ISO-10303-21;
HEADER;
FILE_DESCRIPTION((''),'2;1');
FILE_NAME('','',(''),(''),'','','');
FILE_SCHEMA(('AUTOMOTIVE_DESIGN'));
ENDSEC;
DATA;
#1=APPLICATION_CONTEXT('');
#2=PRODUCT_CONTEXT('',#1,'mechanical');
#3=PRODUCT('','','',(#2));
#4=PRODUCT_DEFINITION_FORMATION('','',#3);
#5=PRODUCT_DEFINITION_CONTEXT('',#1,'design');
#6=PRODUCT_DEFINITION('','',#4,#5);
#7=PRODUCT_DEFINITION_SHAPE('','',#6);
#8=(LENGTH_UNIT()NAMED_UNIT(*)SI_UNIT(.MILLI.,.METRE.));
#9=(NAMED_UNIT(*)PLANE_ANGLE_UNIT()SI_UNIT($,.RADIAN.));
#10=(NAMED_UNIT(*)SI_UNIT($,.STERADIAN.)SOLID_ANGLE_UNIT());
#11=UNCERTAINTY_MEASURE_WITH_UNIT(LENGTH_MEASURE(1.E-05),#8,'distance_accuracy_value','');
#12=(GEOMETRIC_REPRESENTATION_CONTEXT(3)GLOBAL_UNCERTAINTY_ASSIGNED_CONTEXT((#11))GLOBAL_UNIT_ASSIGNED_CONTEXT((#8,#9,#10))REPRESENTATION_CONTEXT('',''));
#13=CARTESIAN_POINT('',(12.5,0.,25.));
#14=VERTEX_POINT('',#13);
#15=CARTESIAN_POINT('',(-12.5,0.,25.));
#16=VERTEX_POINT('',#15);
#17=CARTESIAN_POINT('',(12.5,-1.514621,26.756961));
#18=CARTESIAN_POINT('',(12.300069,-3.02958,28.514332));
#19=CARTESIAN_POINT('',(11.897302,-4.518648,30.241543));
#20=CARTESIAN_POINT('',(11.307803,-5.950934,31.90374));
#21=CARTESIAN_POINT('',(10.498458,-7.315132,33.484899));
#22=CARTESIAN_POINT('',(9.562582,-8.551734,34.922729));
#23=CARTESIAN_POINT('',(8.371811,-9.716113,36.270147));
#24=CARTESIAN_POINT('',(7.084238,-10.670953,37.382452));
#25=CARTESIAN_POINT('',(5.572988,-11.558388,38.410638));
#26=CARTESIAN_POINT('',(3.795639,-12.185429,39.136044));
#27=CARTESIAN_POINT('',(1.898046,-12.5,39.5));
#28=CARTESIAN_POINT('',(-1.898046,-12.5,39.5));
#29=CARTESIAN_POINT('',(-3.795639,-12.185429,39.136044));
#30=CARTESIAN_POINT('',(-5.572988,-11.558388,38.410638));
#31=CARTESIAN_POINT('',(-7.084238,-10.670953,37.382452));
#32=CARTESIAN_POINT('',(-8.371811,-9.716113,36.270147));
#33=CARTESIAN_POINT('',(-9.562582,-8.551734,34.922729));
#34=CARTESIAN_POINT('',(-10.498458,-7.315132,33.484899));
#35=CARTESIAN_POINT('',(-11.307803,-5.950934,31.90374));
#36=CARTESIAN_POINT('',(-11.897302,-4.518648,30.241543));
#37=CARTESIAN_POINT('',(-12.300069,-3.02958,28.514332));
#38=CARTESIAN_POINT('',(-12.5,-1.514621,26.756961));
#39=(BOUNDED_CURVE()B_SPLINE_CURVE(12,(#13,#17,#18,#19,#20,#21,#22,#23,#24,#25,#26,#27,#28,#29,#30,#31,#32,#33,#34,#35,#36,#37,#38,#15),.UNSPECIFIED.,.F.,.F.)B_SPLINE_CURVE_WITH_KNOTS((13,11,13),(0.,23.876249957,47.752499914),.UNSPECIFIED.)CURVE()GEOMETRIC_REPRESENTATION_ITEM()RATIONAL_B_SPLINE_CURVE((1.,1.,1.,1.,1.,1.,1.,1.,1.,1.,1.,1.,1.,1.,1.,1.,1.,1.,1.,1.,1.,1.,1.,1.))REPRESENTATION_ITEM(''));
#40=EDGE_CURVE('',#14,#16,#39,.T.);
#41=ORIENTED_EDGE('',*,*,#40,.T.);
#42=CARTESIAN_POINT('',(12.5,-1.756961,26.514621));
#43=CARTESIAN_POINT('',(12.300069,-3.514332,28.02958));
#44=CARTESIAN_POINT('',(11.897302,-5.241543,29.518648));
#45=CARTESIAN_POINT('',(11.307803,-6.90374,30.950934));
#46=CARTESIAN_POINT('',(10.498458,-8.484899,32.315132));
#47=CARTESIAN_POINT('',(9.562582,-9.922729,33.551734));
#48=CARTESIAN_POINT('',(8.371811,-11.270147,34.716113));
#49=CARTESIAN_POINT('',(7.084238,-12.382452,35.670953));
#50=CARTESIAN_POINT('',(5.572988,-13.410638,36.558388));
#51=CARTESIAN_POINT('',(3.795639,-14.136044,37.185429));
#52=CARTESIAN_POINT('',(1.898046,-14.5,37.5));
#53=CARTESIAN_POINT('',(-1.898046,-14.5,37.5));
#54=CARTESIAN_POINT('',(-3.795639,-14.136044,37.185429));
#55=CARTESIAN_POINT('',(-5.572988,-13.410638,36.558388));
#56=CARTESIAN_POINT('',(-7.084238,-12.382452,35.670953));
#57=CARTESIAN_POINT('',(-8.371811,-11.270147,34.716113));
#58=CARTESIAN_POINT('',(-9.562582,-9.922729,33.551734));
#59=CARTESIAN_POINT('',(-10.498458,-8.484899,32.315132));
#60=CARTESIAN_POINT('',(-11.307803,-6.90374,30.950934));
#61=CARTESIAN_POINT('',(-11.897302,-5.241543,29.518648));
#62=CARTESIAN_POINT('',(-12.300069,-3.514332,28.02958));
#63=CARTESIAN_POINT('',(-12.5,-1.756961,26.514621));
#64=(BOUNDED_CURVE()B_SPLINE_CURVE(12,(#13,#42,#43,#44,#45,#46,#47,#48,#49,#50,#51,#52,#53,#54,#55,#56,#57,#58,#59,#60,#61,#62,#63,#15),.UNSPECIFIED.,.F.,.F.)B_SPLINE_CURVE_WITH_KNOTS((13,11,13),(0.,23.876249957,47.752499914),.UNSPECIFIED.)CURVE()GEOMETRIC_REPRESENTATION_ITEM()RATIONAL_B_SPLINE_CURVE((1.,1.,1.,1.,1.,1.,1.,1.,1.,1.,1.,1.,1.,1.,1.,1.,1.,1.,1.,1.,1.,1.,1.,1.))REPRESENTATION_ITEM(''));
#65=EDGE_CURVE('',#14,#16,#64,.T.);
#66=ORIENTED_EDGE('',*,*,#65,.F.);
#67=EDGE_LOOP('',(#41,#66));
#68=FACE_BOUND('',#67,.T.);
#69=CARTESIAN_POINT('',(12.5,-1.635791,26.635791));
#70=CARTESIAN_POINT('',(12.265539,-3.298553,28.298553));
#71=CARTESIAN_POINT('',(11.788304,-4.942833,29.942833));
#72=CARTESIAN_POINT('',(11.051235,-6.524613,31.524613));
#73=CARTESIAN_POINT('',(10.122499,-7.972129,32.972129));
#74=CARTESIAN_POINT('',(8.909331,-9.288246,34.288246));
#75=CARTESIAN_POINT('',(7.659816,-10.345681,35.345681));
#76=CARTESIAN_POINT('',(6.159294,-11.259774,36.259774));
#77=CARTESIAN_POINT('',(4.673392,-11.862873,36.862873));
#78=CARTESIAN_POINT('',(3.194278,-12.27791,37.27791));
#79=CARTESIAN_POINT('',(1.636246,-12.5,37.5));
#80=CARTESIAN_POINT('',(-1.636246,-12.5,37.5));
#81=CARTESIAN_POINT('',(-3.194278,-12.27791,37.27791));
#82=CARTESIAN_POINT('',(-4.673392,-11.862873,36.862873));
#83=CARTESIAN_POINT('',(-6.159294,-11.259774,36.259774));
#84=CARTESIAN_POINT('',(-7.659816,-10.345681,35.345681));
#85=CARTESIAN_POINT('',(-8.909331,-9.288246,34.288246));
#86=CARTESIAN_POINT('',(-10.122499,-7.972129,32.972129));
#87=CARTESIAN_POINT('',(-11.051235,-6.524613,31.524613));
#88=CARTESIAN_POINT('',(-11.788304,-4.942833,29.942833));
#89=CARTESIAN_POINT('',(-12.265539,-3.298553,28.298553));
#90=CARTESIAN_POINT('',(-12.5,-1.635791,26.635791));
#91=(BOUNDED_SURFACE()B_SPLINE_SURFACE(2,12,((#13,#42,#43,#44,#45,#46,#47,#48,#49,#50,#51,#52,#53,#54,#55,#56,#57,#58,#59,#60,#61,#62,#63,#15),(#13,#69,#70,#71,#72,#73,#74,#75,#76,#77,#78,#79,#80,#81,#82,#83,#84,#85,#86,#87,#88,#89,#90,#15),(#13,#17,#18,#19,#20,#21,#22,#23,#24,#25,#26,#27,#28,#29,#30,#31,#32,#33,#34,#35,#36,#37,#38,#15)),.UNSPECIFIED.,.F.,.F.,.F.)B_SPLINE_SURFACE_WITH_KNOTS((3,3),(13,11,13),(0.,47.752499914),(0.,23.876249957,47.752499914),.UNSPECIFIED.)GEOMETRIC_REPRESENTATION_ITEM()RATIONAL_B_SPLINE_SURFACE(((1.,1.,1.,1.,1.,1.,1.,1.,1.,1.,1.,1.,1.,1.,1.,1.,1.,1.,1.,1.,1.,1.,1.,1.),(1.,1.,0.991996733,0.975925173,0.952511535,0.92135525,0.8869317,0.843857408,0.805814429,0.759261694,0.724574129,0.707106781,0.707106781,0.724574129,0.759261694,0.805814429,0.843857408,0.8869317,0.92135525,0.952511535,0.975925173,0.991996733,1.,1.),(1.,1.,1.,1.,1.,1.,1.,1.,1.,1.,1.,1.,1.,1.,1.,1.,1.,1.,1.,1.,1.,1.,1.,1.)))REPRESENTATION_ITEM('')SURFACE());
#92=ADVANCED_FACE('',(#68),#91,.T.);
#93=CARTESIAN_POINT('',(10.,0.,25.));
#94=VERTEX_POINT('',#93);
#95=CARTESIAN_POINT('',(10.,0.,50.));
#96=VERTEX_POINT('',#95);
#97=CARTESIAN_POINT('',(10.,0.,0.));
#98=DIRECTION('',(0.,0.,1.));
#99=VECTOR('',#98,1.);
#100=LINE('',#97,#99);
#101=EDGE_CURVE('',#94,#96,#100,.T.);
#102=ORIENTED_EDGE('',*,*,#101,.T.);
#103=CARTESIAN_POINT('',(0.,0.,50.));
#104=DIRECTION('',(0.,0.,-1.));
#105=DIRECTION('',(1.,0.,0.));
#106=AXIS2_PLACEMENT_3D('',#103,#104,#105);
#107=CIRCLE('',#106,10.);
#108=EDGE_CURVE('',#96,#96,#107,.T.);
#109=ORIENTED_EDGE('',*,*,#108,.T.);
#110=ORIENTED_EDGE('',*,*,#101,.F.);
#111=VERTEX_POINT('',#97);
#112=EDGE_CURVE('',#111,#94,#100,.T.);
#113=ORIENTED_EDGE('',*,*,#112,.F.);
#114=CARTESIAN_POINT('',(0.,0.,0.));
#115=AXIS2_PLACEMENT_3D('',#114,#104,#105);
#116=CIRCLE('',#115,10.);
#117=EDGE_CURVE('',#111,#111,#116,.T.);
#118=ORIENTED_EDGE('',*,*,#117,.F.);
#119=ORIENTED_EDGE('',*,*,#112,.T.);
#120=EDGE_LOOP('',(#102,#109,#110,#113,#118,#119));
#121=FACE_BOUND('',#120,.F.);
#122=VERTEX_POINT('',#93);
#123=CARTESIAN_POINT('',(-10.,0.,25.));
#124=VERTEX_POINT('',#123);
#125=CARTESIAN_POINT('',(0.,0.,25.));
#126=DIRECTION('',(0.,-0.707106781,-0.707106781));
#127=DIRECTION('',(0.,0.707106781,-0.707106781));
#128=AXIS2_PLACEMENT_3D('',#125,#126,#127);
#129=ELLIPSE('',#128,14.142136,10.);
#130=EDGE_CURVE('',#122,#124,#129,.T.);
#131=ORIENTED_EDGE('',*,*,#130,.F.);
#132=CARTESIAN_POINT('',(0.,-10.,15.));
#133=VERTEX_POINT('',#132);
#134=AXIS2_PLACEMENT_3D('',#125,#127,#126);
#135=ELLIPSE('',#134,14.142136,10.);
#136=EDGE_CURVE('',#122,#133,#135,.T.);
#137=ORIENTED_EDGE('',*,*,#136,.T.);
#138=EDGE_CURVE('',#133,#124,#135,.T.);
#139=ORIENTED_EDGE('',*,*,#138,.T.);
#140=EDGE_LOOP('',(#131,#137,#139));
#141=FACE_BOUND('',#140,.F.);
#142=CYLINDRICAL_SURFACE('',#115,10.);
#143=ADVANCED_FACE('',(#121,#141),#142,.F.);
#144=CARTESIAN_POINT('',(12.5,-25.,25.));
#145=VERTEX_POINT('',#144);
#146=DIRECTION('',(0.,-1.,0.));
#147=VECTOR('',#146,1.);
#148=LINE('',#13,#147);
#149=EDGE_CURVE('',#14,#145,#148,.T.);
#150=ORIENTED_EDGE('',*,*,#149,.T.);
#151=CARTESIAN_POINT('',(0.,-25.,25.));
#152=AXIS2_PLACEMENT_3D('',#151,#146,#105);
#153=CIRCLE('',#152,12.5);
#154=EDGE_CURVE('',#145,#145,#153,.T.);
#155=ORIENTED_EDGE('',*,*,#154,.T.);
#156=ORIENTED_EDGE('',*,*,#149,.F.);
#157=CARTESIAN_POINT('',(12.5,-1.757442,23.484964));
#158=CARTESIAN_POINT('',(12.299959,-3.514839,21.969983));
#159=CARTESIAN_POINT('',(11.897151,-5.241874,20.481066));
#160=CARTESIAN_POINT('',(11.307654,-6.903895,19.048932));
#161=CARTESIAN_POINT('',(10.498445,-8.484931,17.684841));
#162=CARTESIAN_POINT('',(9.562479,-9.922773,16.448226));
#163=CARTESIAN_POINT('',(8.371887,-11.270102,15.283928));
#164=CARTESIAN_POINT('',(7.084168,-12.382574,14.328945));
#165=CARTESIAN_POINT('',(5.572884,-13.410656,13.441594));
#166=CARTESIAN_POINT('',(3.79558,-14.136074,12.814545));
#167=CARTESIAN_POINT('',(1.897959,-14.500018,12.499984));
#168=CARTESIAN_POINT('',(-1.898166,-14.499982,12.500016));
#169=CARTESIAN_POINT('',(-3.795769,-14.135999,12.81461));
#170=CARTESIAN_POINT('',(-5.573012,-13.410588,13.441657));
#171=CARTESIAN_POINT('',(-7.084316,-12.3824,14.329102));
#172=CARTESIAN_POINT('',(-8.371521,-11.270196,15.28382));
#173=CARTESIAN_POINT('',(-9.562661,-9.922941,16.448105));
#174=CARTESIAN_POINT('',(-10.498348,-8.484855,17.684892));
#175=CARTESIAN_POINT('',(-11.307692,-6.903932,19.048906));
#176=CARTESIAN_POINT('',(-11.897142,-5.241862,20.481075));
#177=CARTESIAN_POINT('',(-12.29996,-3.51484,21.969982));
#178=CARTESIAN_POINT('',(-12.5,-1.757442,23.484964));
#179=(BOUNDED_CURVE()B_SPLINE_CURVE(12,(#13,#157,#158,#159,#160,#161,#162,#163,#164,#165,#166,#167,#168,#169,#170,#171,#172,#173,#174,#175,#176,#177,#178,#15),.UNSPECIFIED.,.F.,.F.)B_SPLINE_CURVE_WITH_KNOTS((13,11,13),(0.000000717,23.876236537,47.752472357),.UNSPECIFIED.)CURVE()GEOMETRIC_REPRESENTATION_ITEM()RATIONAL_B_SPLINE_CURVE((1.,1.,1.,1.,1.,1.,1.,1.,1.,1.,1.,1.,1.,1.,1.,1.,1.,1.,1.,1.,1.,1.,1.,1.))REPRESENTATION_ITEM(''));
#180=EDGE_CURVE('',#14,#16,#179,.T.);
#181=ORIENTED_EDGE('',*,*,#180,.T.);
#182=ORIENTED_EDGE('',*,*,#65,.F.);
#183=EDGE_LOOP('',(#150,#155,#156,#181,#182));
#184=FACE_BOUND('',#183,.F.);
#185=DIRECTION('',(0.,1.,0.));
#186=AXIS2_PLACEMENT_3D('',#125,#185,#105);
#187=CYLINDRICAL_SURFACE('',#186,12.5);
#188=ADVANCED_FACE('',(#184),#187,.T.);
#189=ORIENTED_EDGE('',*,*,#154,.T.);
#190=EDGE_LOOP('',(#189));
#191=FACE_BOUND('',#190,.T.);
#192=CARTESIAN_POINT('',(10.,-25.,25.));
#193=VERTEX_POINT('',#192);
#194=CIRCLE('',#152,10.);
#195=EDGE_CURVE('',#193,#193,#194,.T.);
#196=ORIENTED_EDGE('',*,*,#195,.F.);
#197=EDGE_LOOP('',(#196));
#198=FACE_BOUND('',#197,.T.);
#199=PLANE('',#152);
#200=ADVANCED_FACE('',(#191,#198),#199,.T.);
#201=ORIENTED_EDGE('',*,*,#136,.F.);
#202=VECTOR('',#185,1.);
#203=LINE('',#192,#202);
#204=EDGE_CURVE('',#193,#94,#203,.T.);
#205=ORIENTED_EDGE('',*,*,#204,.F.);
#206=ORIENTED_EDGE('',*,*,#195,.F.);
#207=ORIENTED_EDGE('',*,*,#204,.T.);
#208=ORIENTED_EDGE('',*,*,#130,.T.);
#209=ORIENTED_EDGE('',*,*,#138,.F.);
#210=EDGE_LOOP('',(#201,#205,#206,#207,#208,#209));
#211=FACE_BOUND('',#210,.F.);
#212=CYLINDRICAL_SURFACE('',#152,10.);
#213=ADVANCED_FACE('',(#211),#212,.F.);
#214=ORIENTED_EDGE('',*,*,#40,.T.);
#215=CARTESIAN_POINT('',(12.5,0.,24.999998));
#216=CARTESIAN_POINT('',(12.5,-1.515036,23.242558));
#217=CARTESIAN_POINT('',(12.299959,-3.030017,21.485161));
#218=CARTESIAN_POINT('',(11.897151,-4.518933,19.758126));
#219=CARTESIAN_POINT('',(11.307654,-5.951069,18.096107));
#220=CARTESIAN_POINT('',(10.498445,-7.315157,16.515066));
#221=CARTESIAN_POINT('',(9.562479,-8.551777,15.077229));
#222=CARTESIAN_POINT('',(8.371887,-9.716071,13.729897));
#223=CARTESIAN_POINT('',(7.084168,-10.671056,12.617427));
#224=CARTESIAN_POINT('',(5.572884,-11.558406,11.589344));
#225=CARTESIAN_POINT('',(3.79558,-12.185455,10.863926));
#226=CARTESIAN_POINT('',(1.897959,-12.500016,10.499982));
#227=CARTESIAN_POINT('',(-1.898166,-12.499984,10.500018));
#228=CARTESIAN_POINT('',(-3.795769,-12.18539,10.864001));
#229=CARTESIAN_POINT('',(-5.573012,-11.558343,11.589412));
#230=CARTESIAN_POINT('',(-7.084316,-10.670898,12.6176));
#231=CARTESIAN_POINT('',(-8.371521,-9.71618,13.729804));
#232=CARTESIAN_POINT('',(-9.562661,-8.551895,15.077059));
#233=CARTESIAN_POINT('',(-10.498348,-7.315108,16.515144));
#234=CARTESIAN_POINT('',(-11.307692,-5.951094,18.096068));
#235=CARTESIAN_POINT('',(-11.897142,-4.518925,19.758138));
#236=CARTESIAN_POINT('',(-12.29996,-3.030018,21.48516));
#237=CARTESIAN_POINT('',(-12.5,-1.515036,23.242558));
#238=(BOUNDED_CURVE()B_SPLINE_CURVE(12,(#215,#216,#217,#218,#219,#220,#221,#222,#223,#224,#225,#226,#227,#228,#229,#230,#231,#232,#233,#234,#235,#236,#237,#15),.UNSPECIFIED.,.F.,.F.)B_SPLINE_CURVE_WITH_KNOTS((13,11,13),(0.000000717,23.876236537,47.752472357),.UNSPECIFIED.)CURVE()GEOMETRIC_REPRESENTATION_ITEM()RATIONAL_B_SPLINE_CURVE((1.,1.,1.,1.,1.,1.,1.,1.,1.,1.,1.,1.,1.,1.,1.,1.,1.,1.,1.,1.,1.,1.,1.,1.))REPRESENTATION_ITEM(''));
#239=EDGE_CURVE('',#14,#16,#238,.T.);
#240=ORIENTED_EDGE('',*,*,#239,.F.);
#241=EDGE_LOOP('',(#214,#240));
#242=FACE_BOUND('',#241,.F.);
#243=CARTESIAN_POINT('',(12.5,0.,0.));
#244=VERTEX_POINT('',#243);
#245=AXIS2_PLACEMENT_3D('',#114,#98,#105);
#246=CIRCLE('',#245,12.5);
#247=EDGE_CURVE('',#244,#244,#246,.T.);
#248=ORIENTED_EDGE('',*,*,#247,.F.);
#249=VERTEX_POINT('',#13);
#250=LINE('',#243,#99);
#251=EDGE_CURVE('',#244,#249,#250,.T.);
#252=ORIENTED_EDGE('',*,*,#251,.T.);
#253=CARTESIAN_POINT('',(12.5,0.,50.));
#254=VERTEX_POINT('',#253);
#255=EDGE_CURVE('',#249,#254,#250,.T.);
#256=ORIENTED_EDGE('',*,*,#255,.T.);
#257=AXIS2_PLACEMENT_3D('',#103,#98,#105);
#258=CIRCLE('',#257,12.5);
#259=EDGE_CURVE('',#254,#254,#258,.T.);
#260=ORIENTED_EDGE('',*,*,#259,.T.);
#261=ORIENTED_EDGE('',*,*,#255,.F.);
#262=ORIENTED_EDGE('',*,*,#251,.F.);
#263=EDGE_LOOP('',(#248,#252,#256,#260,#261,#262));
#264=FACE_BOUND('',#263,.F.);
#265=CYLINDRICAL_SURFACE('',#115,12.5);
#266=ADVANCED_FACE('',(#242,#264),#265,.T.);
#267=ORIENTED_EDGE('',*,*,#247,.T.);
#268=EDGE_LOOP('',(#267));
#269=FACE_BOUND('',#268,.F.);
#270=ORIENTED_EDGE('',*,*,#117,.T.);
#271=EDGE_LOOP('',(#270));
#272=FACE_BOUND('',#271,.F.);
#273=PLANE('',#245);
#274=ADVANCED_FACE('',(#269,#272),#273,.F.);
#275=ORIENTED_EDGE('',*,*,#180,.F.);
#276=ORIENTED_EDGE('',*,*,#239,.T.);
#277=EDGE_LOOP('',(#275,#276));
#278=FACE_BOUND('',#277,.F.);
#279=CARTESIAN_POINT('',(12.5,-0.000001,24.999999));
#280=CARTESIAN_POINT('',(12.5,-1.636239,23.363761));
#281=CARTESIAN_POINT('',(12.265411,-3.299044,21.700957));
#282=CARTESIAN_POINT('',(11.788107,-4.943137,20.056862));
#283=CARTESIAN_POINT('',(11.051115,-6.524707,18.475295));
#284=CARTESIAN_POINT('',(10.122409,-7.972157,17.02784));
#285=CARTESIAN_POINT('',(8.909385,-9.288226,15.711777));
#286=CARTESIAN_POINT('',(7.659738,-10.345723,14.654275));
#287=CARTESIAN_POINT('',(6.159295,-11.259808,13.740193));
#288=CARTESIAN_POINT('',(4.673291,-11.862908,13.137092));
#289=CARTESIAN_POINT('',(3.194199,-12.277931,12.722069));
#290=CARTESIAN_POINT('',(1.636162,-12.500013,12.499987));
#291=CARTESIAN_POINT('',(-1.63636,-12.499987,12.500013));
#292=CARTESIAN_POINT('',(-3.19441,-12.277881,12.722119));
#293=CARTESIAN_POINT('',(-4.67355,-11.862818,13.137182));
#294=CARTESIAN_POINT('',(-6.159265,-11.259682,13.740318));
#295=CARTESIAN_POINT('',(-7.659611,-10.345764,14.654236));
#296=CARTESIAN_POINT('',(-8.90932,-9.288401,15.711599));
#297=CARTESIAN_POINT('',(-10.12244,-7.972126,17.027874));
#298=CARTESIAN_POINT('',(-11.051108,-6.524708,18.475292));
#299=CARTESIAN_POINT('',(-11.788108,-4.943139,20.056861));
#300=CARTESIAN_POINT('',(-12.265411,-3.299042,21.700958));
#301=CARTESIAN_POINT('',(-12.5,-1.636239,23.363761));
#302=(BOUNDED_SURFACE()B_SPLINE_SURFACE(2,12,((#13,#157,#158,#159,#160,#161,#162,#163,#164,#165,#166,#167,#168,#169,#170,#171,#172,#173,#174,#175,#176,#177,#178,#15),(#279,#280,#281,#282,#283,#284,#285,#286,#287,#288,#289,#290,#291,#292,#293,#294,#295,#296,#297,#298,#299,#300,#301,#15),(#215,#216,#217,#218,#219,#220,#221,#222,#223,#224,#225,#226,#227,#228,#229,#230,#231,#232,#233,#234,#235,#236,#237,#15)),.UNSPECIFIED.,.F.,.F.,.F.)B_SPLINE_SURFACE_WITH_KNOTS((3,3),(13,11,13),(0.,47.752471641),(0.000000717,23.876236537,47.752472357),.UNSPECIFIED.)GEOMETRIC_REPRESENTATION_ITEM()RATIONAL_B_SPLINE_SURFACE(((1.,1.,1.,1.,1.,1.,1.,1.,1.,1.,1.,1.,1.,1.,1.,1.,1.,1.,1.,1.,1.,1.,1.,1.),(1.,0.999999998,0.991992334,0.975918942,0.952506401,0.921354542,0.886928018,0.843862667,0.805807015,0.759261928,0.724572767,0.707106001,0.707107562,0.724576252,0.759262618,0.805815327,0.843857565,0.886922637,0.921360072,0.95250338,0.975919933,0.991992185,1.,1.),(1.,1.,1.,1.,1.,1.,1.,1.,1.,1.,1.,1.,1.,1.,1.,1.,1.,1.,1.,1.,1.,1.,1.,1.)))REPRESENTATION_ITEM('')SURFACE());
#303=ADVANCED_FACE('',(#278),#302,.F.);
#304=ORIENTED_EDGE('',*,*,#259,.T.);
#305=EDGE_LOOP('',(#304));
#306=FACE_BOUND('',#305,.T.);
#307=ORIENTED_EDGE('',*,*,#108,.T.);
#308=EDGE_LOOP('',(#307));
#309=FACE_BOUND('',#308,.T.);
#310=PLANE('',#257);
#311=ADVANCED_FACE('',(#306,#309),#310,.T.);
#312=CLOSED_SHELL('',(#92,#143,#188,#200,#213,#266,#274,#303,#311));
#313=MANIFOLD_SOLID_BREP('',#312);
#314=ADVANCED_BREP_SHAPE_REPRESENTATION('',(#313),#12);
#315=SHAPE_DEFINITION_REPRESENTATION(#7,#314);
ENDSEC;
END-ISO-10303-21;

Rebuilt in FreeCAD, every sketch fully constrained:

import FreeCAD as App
import Part
import Sketcher


def edges_at(feature, points):
    """Names of the edges that pass closest to the given points."""
    edges = feature.Shape.Edges
    near = lambda p: min(range(len(edges)), key=lambda i: edges[i].distToShape(Part.Vertex(*p))[0])
    return sorted({f"Edge{near(p) + 1}" for p in points})

doc = App.newDocument("Part")
body = doc.addObject("PartDesign::Body", "Body")

# Sketch on XY plane
sketch1 = doc.addObject("Sketcher::SketchObject", "Sketch")
body.addObject(sketch1)
sketch1.AttachmentSupport = (doc.XY_Plane, [""])
sketch1.MapMode = "FlatFace"
sketch1.addGeometry(Part.Circle(App.Vector(0, 0, 0), App.Vector(0, 0, 1), 12), False)
sketch1.addConstraint([
    Sketcher.Constraint("Coincident", 0, 3, -1, 1),
    Sketcher.Constraint("Diameter", 0, 25.0),
])
pad1 = doc.addObject("PartDesign::Pad", "Pad")
body.addObject(pad1)
pad1.Profile = sketch1
pad1.Length = 50

# Sketch on XZ plane
sketch2 = doc.addObject("Sketcher::SketchObject", "Sketch001")
body.addObject(sketch2)
sketch2.AttachmentSupport = (doc.XZ_Plane, [""])
sketch2.MapMode = "FlatFace"
sketch2.addGeometry(Part.Circle(App.Vector(0, 25, 0), App.Vector(0, 0, 1), 12), False)
sketch2.addConstraint([
    Sketcher.Constraint("PointOnObject", 0, 3, -2),
    Sketcher.Constraint("Diameter", 0, 25.0),
    Sketcher.Constraint("DistanceY", -1, 1, 0, 3, 25.0),
])
pad2 = doc.addObject("PartDesign::Pad", "Pad001")
body.addObject(pad2)
pad2.Profile = sketch2
pad2.Length = 25

# Sketch on XY plane
sketch3 = doc.addObject("Sketcher::SketchObject", "Sketch002")
body.addObject(sketch3)
sketch3.AttachmentSupport = (doc.XY_Plane, [""])
sketch3.MapMode = "FlatFace"
sketch3.addGeometry(Part.Circle(App.Vector(0, 0, 0), App.Vector(0, 0, 1), 10), False)
sketch3.addConstraint([
    Sketcher.Constraint("Coincident", 0, 3, -1, 1),
    Sketcher.Constraint("Diameter", 0, 20.0),
])
pocket1 = doc.addObject("PartDesign::Pocket", "Pocket")
body.addObject(pocket1)
pocket1.Profile = sketch3
pocket1.Type = "ThroughAll"
pocket1.Reversed = True

# Sketch on XZ plane
sketch4 = doc.addObject("Sketcher::SketchObject", "Sketch003")
body.addObject(sketch4)
sketch4.AttachmentSupport = (doc.XZ_Plane, [""])
sketch4.MapMode = "FlatFace"
sketch4.AttachmentOffset = App.Placement(App.Vector(0, 0, 25), App.Rotation())
sketch4.addGeometry(Part.Circle(App.Vector(0, 25, 0), App.Vector(0, 0, 1), 10), False)
sketch4.addConstraint([
    Sketcher.Constraint("PointOnObject", 0, 3, -2),
    Sketcher.Constraint("Diameter", 0, 20.0),
    Sketcher.Constraint("DistanceY", -1, 1, 0, 3, 25.0),
])
pocket2 = doc.addObject("PartDesign::Pocket", "Pocket001")
body.addObject(pocket2)
pocket2.Profile = sketch4
pocket2.Length = 25
doc.recompute()

fillet = doc.addObject("PartDesign::Fillet", "Fillet")
body.addObject(fillet)
fillet.Base = (pocket2, edges_at(pocket2, [(9.541, -8.076, 16.924), (-9.541, -8.076, 16.924), (0, -12.5, 37.5)]))
fillet.Radius = 2

doc.recompute()
